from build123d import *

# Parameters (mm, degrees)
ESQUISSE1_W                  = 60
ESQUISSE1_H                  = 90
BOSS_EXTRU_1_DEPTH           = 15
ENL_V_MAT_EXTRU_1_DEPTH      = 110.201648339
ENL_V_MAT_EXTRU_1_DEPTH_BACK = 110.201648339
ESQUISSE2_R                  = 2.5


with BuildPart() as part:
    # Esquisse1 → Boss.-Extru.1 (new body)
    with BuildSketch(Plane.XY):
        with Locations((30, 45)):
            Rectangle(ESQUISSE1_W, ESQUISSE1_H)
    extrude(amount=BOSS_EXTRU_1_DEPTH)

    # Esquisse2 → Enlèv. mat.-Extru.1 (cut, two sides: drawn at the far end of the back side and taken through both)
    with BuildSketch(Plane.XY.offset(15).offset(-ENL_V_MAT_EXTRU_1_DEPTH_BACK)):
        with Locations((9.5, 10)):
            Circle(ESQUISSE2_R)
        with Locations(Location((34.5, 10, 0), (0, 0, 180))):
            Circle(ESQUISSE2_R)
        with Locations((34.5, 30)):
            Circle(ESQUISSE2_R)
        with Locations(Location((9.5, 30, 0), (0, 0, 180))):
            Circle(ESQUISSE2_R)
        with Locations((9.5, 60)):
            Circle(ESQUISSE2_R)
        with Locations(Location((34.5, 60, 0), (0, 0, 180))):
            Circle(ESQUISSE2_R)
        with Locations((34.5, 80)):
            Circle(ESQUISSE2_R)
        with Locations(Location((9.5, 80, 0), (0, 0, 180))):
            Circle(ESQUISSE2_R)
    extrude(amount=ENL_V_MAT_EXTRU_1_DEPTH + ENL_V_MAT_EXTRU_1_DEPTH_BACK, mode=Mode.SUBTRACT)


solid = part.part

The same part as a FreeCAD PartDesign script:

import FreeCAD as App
import Part
import Sketcher
from FreeCAD import Vector


def add_polygon(sketch, points):
    """Adds a closed chain of lines whose ends are joined by coincident constraints."""
    first, n = sketch.GeometryCount, len(points)
    for a, b in zip(points, points[1:] + points[:1]):
        sketch.addGeometry(Part.LineSegment(App.Vector(*a, 0), App.Vector(*b, 0)), False)
    for i in range(n):
        sketch.addConstraint(Sketcher.Constraint("Coincident", first + i, 2, first + (i + 1) % n, 1))

doc = App.newDocument("Part")
body = doc.addObject("PartDesign::Body", "Body")

# Sketch on XY plane
sketch1 = doc.addObject("Sketcher::SketchObject", "Sketch")
body.addObject(sketch1)
sketch1.AttachmentSupport = (doc.XY_Plane, [""])
sketch1.MapMode = "FlatFace"
add_polygon(sketch1, [(0, 90), (0, 0), (60, 0), (60, 90)])  # lines 0-3
sketch1.addConstraint([
    Sketcher.Constraint("Vertical", 0),
    Sketcher.Constraint("Horizontal", 1),
    Sketcher.Constraint("Vertical", 2),
    Sketcher.Constraint("Horizontal", 3),
    Sketcher.Constraint("Coincident", 0, 2, -1, 1),
    Sketcher.Constraint("DistanceX", 1, 1, 1, 2, 60.0),
    Sketcher.Constraint("DistanceY", 0, 2, 0, 1, 90.0),
])
pad1 = doc.addObject("PartDesign::Pad", "Pad")
body.addObject(pad1)
pad1.Profile = sketch1
pad1.Length = 15

# Sketch on XY plane
sketch2 = doc.addObject("Sketcher::SketchObject", "Sketch001")
body.addObject(sketch2)
sketch2.AttachmentSupport = (doc.XY_Plane, [""])
sketch2.MapMode = "FlatFace"
sketch2.AttachmentOffset = App.Placement(Vector(0, 0, 15), App.Rotation())
sketch2.addGeometry([
    Part.Circle(Vector(9.5, 10, 0), Vector(0, 0, 1), 2.5),  # 0
    Part.Circle(Vector(34.5, 10, 0), Vector(0, 0, 1), 2.5),  # 1
    Part.Circle(Vector(34.5, 30, 0), Vector(0, 0, 1), 2.5),  # 2
    Part.Circle(Vector(9.5, 30, 0), Vector(0, 0, 1), 2.5),  # 3
    Part.Circle(Vector(9.5, 60, 0), Vector(0, 0, 1), 2.5),  # 4
    Part.Circle(Vector(34.5, 60, 0), Vector(0, 0, 1), 2.5),  # 5
    Part.Circle(Vector(34.5, 80, 0), Vector(0, 0, 1), 2.5),  # 6
    Part.Circle(Vector(9.5, 80, 0), Vector(0, 0, 1), 2.5),  # 7
], False)
sketch2.addConstraint([
    Sketcher.Constraint("Equal", 0, 1),
    Sketcher.Constraint("Equal", 1, 2),
    Sketcher.Constraint("Equal", 2, 3),
    Sketcher.Constraint("Equal", 3, 4),
    Sketcher.Constraint("Equal", 4, 5),
    Sketcher.Constraint("Equal", 5, 6),
    Sketcher.Constraint("Equal", 6, 7),
    Sketcher.Constraint("Horizontal", 0, 3, 1, 3),
    Sketcher.Constraint("Horizontal", 2, 3, 3, 3),
    Sketcher.Constraint("Horizontal", 4, 3, 5, 3),
    Sketcher.Constraint("Horizontal", 6, 3, 7, 3),
    Sketcher.Constraint("Vertical", 1, 3, 2, 3),
    Sketcher.Constraint("Vertical", 0, 3, 3, 3),
    Sketcher.Constraint("Vertical", 3, 3, 4, 3),
    Sketcher.Constraint("Vertical", 2, 3, 5, 3),
    Sketcher.Constraint("Vertical", 5, 3, 6, 3),
    Sketcher.Constraint("Vertical", 4, 3, 7, 3),
    Sketcher.Constraint("Diameter", 0, 5.0),
    Sketcher.Constraint("DistanceY", -1, 1, 0, 3, 10.0),
    Sketcher.Constraint("DistanceY", -1, 1, 2, 3, 30.0),
    Sketcher.Constraint("DistanceY", -1, 1, 4, 3, 60.0),
    Sketcher.Constraint("DistanceY", -1, 1, 6, 3, 80.0),
    Sketcher.Constraint("DistanceX", 0, 3, 1, 3, 25.0),
    Sketcher.Constraint("DistanceX", -1, 1, 0, 3, 9.5),
])
pocket1 = doc.addObject("PartDesign::Pocket", "Pocket")
body.addObject(pocket1)
pocket1.Profile = sketch2
pocket1.Type = "ThroughAll"
pocket1.Midplane = True

doc.recompute()
